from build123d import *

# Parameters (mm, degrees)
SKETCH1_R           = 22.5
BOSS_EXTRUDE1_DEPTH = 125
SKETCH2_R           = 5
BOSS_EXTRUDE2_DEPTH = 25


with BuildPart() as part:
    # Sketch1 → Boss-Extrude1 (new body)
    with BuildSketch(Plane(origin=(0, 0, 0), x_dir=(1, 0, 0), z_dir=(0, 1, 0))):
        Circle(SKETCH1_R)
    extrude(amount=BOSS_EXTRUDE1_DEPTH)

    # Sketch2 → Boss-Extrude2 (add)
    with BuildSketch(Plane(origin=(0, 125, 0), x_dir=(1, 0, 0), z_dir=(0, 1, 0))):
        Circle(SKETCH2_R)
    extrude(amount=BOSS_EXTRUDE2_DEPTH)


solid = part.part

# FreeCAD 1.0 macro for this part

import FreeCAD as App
import Part
import Sketcher

V = App.Vector
Q = App.Units.Quantity

doc = App.newDocument("Part")
body = doc.addObject("PartDesign::Body", "Body")

# Sketch on XZ plane
sketch1 = body.newObject("Sketcher::SketchObject", "Sketch")
sketch1.AttachmentSupport = (doc.getObject("XZ_Plane"), [""])
sketch1.MapMode = "FlatFace"
sketch1.addGeometry(Part.Circle(V(0, 0, 0), V(0, 0, 1), 22), False)
sketch1.addConstraint(Sketcher.Constraint("Coincident", 0, 3, -1, 1))
sketch1.addConstraint(Sketcher.Constraint("Diameter", 0, Q("45 mm")))
pad1 = body.newObject("PartDesign::Pad", "Pad")
pad1.Profile = sketch1
pad1.Length = 125
pad1.Reversed = True

# Sketch on XZ plane
sketch2 = body.newObject("Sketcher::SketchObject", "Sketch001")
sketch2.AttachmentSupport = (doc.getObject("XZ_Plane"), [""])
sketch2.MapMode = "FlatFace"
sketch2.AttachmentOffset = App.Placement(V(0, 0, -125), App.Rotation())
sketch2.addGeometry(Part.Circle(V(0, 0, 0), V(0, 0, 1), 5), False)
sketch2.addConstraint(Sketcher.Constraint("Coincident", 0, 3, -1, 1))
sketch2.addConstraint(Sketcher.Constraint("Diameter", 0, Q("10 mm")))
pad2 = body.newObject("PartDesign::Pad", "Pad001")
pad2.Profile = sketch2
pad2.Length = 25
pad2.Reversed = True

doc.recompute()
